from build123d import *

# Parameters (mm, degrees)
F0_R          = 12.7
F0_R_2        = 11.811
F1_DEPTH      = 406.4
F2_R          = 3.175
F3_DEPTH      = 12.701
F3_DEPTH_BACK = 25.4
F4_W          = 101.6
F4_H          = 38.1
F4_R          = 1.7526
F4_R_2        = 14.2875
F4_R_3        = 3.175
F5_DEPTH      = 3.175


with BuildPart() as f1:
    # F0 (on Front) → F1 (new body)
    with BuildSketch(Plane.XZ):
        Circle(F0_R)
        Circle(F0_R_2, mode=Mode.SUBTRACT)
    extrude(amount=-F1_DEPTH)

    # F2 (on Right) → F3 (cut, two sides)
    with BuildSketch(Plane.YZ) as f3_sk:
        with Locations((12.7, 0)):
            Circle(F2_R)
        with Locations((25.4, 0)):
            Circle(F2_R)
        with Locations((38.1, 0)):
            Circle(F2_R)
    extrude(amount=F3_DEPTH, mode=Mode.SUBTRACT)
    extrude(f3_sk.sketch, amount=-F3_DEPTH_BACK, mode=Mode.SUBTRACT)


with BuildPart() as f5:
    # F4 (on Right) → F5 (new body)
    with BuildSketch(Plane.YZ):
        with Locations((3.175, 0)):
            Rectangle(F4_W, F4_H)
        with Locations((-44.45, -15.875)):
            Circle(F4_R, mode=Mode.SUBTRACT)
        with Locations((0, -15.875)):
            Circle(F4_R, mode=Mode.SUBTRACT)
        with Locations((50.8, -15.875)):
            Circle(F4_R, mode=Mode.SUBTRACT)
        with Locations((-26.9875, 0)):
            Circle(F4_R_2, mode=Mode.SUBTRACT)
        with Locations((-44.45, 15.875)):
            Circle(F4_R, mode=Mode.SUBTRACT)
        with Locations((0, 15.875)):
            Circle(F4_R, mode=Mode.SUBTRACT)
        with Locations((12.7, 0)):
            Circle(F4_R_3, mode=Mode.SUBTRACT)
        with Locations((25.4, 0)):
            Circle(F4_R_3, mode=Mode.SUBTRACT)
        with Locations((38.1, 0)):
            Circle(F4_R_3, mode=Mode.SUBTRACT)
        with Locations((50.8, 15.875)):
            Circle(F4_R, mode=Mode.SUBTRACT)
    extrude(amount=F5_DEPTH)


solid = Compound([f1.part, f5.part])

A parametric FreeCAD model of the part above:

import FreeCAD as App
import Part
import Sketcher

V = App.Vector
Q = App.Units.Quantity


def add_polygon(sketch, points):
    """Adds a closed chain of lines whose ends are joined by coincident constraints."""
    first, n = sketch.GeometryCount, len(points)
    for a, b in zip(points, points[1:] + points[:1]):
        sketch.addGeometry(Part.LineSegment(App.Vector(*a, 0), App.Vector(*b, 0)), False)
    for i in range(n):
        sketch.addConstraint(Sketcher.Constraint("Coincident", first + i, 2, first + (i + 1) % n, 1))

doc = App.newDocument("Part")
body = doc.addObject("PartDesign::Body", "Body")

# Sketch on XZ plane
sketch1 = body.newObject("Sketcher::SketchObject", "Sketch")
sketch1.AttachmentSupport = (doc.getObject("XZ_Plane"), [""])
sketch1.MapMode = "FlatFace"
sketch1.addGeometry(Part.Circle(V(0, 0, 0), V(0, 0, 1), 13), False)
sketch1.addGeometry(Part.Circle(V(0, 0, 0), V(0, 0, 1), 12), False)
sketch1.addConstraint(Sketcher.Constraint("Coincident", 0, 3, -1, 1))
sketch1.addConstraint(Sketcher.Constraint("Coincident", 1, 3, -1, 1))
sketch1.addConstraint(Sketcher.Constraint("Diameter", 0, Q("1 in")))
sketch1.addConstraint(Sketcher.Constraint("Diameter", 1, Q("0.93 in")))
pad1 = body.newObject("PartDesign::Pad", "Pad")
pad1.Profile = sketch1
pad1.Length = Q("16 in")
pad1.Reversed = True

# Sketch on YZ plane
sketch2 = body.newObject("Sketcher::SketchObject", "Sketch001")
sketch2.AttachmentSupport = (doc.getObject("YZ_Plane"), [""])
sketch2.MapMode = "FlatFace"
sketch2.addGeometry(Part.Circle(V(12.7, 0, 0), V(0, 0, 1), 3.2), False)
sketch2.addGeometry(Part.Circle(V(25.4, 0, 0), V(0, 0, 1), 3.2), False)
sketch2.addGeometry(Part.Circle(V(38.1, 0, 0), V(0, 0, 1), 3.2), False)
sketch2.addConstraint(Sketcher.Constraint("Equal", 0, 1))
sketch2.addConstraint(Sketcher.Constraint("Equal", 1, 2))
sketch2.addConstraint(Sketcher.Constraint("PointOnObject", 0, 3, -1))
sketch2.addConstraint(Sketcher.Constraint("PointOnObject", 1, 3, -1))
sketch2.addConstraint(Sketcher.Constraint("PointOnObject", 2, 3, -1))
sketch2.addConstraint(Sketcher.Constraint("Diameter", 0, Q("0.25 in")))
sketch2.addConstraint(Sketcher.Constraint("DistanceX", -1, 1, 1, 3, Q("1 in")))
sketch2.addConstraint(Sketcher.Constraint("DistanceX", 0, 3, 2, 3, Q("1 in")))
sketch2.addConstraint(Sketcher.Constraint("DistanceX", -1, 1, 0, 3, Q("0.5 in")))
pocket1 = body.newObject("PartDesign::Pocket", "Pocket")
pocket1.Profile = sketch2
pocket1.Type = "ThroughAll"
pocket1.Midplane = True
body2 = doc.addObject("PartDesign::Body", "Body001")

# Sketch on YZ plane
sketch3 = body2.newObject("Sketcher::SketchObject", "Sketch002")
sketch3.AttachmentSupport = (doc.getObject("YZ_Plane001"), [""])
sketch3.MapMode = "FlatFace"
add_polygon(sketch3, [(-47.6, 19.1), (-47.6, -19.1), (54, -19.1), (54, 19.1)])  # lines 0-3
sketch3.addGeometry(Part.Circle(V(-44.5, -15.9, 0), V(0, 0, 1), 1.8), False)  # 4
sketch3.addGeometry(Part.Circle(V(0, -15.9, 0), V(0, 0, 1), 1.8), False)  # 5
sketch3.addGeometry(Part.Circle(V(-27, 0, 0), V(0, 0, 1), 14.3), False)  # 6
sketch3.addGeometry(Part.Circle(V(50.8, -15.9, 0), V(0, 0, 1), 1.8), False)  # 7
sketch3.addGeometry(Part.Circle(V(12.7, 0, 0), V(0, 0, 1), 3.2), False)  # 8
sketch3.addGeometry(Part.Circle(V(25.4, 0, 0), V(0, 0, 1), 3.2), False)  # 9
sketch3.addGeometry(Part.Circle(V(38.1, 0, 0), V(0, 0, 1), 3.2), False)  # 10
sketch3.addGeometry(Part.Circle(V(-44.5, 15.9, 0), V(0, 0, 1), 1.8), False)  # 11
sketch3.addGeometry(Part.Circle(V(0, 15.9, 0), V(0, 0, 1), 1.8), False)  # 12
sketch3.addGeometry(Part.Circle(V(50.8, 15.9, 0), V(0, 0, 1), 1.8), False)  # 13
sketch3.addConstraint(Sketcher.Constraint("Vertical", 0))
sketch3.addConstraint(Sketcher.Constraint("Horizontal", 1))
sketch3.addConstraint(Sketcher.Constraint("Vertical", 2))
sketch3.addConstraint(Sketcher.Constraint("Horizontal", 3))
sketch3.addConstraint(Sketcher.Constraint("Equal", 4, 5))
sketch3.addConstraint(Sketcher.Constraint("Equal", 5, 7))
sketch3.addConstraint(Sketcher.Constraint("Equal", 8, 9))
sketch3.addConstraint(Sketcher.Constraint("Equal", 9, 10))
sketch3.addConstraint(Sketcher.Constraint("Equal", 7, 11))
sketch3.addConstraint(Sketcher.Constraint("Equal", 11, 12))
sketch3.addConstraint(Sketcher.Constraint("Equal", 12, 13))
sketch3.addConstraint(Sketcher.Constraint("Symmetric", 5, 3, 12, 3, -1, 1))
sketch3.addConstraint(Sketcher.Constraint("Symmetric", 4, 3, 11, 3, -1))
sketch3.addConstraint(Sketcher.Constraint("Symmetric", 7, 3, 13, 3, -1))
sketch3.addConstraint(Sketcher.Constraint("PointOnObject", 5, 3, -2))
sketch3.addConstraint(Sketcher.Constraint("PointOnObject", 6, 3, -1))
sketch3.addConstraint(Sketcher.Constraint("PointOnObject", 8, 3, -1))
sketch3.addConstraint(Sketcher.Constraint("PointOnObject", 9, 3, -1))
sketch3.addConstraint(Sketcher.Constraint("PointOnObject", 10, 3, -1))
sketch3.addConstraint(Sketcher.Constraint("Horizontal", 4, 3, 5, 3))
sketch3.addConstraint(Sketcher.Constraint("Horizontal", 5, 3, 7, 3))
sketch3.addConstraint(Sketcher.Constraint("Diameter", 8, Q("0.25 in")))
sketch3.addConstraint(Sketcher.Constraint("DistanceX", 1, 1, 1, 2, Q("4 in")))
sketch3.addConstraint(Sketcher.Constraint("Diameter", 4, Q("0.138 in")))
sketch3.addConstraint(Sketcher.Constraint("Diameter", 6, Q("1.125 in")))
sketch3.addConstraint(Sketcher.Constraint("DistanceY", 0, 2, 0, 1, Q("1.5 in")))
sketch3.addConstraint(Sketcher.Constraint("DistanceX", -1, 1, 7, 3, Q("2 in")))
sketch3.addConstraint(Sketcher.Constraint("DistanceX", -1, 1, 9, 3, Q("1 in")))
sketch3.addConstraint(Sketcher.Constraint("DistanceX", 8, 3, 10, 3, Q("1 in")))
sketch3.addConstraint(Sketcher.Constraint("DistanceX", -1, 1, 8, 3, Q("0.5 in")))
sketch3.addConstraint(Sketcher.Constraint("DistanceX", 4, 3, -1, 1, Q("1.75 in")))
sketch3.addConstraint(Sketcher.Constraint("DistanceY", 0, 2, -1, 1, Q("0.75 in")))
sketch3.addConstraint(Sketcher.Constraint("DistanceY", 4, 3, 11, 3, Q("1.25 in")))
sketch3.addConstraint(Sketcher.Constraint("DistanceX", 6, 3, -1, 1, Q("1.0625 in")))
sketch3.addConstraint(Sketcher.Constraint("DistanceX", 0, 2, -1, 1, Q("1.875 in")))
pad2 = body2.newObject("PartDesign::Pad", "Pad001")
pad2.Profile = sketch3
pad2.Length = Q("0.125 in")

doc.recompute()
